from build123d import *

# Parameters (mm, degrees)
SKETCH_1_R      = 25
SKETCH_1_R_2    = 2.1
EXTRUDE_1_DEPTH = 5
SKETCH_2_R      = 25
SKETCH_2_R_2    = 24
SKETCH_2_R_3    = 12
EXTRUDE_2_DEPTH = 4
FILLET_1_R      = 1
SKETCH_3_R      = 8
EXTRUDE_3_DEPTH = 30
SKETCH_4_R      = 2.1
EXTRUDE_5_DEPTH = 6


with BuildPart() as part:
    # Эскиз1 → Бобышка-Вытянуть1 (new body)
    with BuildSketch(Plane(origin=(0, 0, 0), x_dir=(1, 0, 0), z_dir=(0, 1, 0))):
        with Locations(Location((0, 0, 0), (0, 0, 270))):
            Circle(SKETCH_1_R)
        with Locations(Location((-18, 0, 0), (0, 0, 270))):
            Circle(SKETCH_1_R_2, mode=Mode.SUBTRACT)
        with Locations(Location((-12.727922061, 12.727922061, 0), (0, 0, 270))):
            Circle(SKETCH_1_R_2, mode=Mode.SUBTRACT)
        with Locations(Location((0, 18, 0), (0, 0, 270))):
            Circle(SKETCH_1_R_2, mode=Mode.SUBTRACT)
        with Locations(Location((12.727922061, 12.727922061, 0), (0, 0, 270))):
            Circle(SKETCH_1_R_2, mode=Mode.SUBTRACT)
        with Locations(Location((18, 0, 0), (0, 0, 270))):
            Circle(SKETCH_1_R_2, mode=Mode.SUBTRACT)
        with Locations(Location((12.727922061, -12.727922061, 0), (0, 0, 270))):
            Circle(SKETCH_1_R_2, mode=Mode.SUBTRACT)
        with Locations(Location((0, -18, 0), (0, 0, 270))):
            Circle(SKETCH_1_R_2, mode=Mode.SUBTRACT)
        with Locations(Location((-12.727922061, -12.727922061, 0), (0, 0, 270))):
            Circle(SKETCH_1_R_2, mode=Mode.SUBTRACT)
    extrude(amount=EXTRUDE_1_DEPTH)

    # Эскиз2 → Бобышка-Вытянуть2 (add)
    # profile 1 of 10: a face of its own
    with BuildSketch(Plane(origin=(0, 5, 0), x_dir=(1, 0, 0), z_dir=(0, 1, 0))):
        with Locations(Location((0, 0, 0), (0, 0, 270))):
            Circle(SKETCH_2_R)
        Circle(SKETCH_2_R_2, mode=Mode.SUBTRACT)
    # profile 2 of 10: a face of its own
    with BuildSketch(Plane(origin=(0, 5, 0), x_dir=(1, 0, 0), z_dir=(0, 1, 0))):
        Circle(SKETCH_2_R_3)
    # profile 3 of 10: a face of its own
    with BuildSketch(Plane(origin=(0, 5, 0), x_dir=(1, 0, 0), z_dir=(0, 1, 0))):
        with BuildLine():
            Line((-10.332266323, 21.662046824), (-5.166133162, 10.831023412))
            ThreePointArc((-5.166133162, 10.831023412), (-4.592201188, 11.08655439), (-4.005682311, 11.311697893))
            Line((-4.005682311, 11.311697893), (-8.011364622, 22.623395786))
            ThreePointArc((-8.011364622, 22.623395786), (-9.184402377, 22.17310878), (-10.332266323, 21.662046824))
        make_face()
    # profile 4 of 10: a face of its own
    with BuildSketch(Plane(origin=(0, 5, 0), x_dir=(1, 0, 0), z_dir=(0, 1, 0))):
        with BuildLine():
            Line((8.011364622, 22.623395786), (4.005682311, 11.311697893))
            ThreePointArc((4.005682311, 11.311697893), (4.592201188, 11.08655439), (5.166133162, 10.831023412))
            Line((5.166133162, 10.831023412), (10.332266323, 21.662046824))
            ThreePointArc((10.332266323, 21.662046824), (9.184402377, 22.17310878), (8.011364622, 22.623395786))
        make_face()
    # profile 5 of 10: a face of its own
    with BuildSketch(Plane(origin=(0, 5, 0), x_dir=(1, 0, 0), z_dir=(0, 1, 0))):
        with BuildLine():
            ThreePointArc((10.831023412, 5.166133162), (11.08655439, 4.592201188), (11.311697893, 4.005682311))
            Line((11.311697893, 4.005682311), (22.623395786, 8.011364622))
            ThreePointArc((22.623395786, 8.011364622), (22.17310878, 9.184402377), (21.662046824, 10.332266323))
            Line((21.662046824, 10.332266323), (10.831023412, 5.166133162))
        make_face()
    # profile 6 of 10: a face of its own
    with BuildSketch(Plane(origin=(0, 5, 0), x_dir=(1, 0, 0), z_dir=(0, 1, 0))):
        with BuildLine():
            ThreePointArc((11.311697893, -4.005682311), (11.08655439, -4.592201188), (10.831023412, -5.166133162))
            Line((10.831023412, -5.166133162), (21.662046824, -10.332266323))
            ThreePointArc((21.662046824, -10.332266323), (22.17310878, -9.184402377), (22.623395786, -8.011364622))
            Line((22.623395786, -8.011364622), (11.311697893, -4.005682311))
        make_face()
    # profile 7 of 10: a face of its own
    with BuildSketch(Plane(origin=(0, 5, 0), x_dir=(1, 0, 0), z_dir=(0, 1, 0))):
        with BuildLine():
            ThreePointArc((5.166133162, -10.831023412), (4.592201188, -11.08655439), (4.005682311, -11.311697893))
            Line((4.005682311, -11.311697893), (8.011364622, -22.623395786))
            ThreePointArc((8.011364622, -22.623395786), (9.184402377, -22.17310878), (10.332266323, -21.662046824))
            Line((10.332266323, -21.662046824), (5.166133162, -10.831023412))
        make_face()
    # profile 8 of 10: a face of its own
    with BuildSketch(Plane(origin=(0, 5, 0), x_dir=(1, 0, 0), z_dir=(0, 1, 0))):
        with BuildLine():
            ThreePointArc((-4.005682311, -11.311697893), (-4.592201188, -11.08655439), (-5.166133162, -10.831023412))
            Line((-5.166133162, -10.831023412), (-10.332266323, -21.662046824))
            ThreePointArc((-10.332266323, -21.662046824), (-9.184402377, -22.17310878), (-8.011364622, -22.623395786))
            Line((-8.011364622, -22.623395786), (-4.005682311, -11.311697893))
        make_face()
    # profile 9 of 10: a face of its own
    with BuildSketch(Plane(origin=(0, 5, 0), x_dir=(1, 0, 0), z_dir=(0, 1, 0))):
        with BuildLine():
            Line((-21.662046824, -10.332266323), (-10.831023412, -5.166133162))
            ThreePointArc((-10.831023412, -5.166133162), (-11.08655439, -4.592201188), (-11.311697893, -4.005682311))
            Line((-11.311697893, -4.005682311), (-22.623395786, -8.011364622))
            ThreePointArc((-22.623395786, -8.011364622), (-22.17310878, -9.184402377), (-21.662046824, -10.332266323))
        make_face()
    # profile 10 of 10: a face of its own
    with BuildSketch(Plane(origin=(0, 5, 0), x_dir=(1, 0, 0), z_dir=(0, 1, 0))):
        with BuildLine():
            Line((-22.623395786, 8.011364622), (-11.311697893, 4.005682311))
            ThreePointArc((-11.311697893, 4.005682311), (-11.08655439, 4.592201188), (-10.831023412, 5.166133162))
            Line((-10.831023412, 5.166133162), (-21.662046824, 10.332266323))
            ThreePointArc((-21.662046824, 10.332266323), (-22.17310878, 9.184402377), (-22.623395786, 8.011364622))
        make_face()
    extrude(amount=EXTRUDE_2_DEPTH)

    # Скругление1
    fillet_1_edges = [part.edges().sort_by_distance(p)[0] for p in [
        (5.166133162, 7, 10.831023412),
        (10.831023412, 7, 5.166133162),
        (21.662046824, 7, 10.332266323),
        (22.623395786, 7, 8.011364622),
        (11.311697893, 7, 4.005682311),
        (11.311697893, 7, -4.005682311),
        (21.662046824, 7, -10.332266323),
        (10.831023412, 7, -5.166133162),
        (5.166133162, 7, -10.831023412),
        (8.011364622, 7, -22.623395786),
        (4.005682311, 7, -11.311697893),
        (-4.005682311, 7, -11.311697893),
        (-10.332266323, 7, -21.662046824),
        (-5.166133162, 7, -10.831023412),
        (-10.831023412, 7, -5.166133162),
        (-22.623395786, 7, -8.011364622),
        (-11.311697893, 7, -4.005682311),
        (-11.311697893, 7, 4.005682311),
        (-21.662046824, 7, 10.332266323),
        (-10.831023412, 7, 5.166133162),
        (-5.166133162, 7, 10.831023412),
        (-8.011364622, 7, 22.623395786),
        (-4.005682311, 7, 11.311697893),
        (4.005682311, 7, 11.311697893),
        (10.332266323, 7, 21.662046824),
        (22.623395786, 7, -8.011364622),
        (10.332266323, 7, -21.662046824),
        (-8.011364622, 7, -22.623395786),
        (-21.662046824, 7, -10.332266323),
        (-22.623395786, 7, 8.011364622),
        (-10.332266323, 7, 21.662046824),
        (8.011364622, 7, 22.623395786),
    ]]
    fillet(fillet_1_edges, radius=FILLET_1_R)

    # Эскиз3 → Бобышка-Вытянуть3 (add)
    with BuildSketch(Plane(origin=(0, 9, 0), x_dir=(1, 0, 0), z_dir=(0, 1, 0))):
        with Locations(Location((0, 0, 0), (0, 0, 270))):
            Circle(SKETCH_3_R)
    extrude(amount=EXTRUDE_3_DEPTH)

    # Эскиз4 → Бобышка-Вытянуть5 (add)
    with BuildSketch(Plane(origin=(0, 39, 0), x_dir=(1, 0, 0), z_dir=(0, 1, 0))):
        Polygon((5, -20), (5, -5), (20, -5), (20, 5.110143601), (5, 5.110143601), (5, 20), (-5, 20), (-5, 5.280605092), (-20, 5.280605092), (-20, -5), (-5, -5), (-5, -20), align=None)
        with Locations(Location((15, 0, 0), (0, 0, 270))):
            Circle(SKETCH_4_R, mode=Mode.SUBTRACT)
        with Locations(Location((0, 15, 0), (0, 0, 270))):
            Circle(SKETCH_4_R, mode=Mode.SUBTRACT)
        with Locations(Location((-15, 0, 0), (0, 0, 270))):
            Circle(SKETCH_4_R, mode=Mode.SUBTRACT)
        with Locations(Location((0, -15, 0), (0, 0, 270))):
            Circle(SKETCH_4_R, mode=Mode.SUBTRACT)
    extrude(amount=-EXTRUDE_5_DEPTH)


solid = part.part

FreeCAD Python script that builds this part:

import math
import FreeCAD as App
import Part
import Sketcher
Q = App.Units.Quantity


def edges_at(feature, points):
    """Names of the edges that pass closest to the given points."""
    edges = feature.Shape.Edges
    near = lambda p: min(range(len(edges)), key=lambda i: edges[i].distToShape(Part.Vertex(*p))[0])
    return sorted({f"Edge{near(p) + 1}" for p in points})


def add_polygon(sketch, points):
    """Adds a closed chain of lines whose ends are joined by coincident constraints."""
    first, n = sketch.GeometryCount, len(points)
    for a, b in zip(points, points[1:] + points[:1]):
        sketch.addGeometry(Part.LineSegment(App.Vector(*a, 0), App.Vector(*b, 0)), False)
    for i in range(n):
        sketch.addConstraint(Sketcher.Constraint("Coincident", first + i, 2, first + (i + 1) % n, 1))

doc = App.newDocument("Part")
body = doc.addObject("PartDesign::Body", "Body")

sketch1 = body.newObject("Sketcher::SketchObject", "Sketch")
sketch1.AttachmentSupport = (doc.getObject("XZ_Plane"), [""])
sketch1.MapMode = "FlatFace"
sketch1.addGeometry(Part.Circle(App.Vector(0, 0, 0), App.Vector(0, 0, 1), 25), False)
sketch1.addGeometry(Part.Circle(App.Vector(-12.727922, -12.727922, 0), App.Vector(0, 0, 1), 2.1), False)
sketch1.addGeometry(Part.Circle(App.Vector(0, -18, 0), App.Vector(0, 0, 1), 2.1), False)
sketch1.addGeometry(Part.Circle(App.Vector(-18, 0, 0), App.Vector(0, 0, 1), 2.1), False)
sketch1.addGeometry(Part.Circle(App.Vector(-12.727922, 12.727922, 0), App.Vector(0, 0, 1), 2.1), False)
sketch1.addGeometry(Part.Circle(App.Vector(12.727922, -12.727922, 0), App.Vector(0, 0, 1), 2.1), False)
sketch1.addGeometry(Part.Circle(App.Vector(18, 0, 0), App.Vector(0, 0, 1), 2.1), False)
sketch1.addGeometry(Part.Circle(App.Vector(0, 18, 0), App.Vector(0, 0, 1), 2.1), False)
sketch1.addGeometry(Part.Circle(App.Vector(12.727922, 12.727922, 0), App.Vector(0, 0, 1), 2.1), False)
sketch1.addConstraint(Sketcher.Constraint("Coincident", 0, 3, -1, 1))
sketch1.addConstraint(Sketcher.Constraint("Equal", 1, 2))
sketch1.addConstraint(Sketcher.Constraint("Equal", 2, 3))
sketch1.addConstraint(Sketcher.Constraint("Equal", 3, 4))
sketch1.addConstraint(Sketcher.Constraint("Equal", 4, 5))
sketch1.addConstraint(Sketcher.Constraint("Equal", 5, 6))
sketch1.addConstraint(Sketcher.Constraint("Equal", 6, 7))
sketch1.addConstraint(Sketcher.Constraint("Equal", 7, 8))
sketch1.addConstraint(Sketcher.Constraint("Symmetric", 4, 3, 5, 3, -1, 1))
sketch1.addConstraint(Sketcher.Constraint("Symmetric", 3, 3, 6, 3, -1, 1))
sketch1.addConstraint(Sketcher.Constraint("Symmetric", 2, 3, 7, 3, -1, 1))
sketch1.addConstraint(Sketcher.Constraint("Symmetric", 1, 3, 8, 3, -1, 1))
sketch1.addConstraint(Sketcher.Constraint("Symmetric", 1, 3, 5, 3, -2))
sketch1.addConstraint(Sketcher.Constraint("PointOnObject", 2, 3, -2))
sketch1.addConstraint(Sketcher.Constraint("PointOnObject", 3, 3, -1))
sketch1.addConstraint(Sketcher.Constraint("Diameter", 0, 50.0))
sketch1.addConstraint(Sketcher.Constraint("Diameter", 1, 4.2))
sketch1.addConstraint(Sketcher.Constraint("DistanceY", 2, 3, -1, 1, 18.0))
sketch1.addConstraint(Sketcher.Constraint("DistanceX", 3, 3, -1, 1, 18.0))
sketch1.addConstraint(Sketcher.Constraint("DistanceX", 1, 3, -1, 1, 12.727922))
sketch1.addConstraint(Sketcher.Constraint("DistanceY", 1, 3, -1, 1, 12.727922))
pad1 = body.newObject("PartDesign::Pad", "Pad")
pad1.Profile = sketch1
pad1.Length = 5
pad1.Reversed = True

sketch2 = body.newObject("Sketcher::SketchObject", "Sketch001")
sketch2.AttachmentSupport = (doc.getObject("XZ_Plane"), [""])
sketch2.MapMode = "FlatFace"
sketch2.AttachmentOffset = App.Placement(App.Vector(0, 0, -5), App.Rotation())
sketch2.addGeometry(Part.Circle(App.Vector(0, 0, 0), App.Vector(0, 0, 1), 25), False)
sketch2.addGeometry(Part.ArcOfCircle(Part.Circle(App.Vector(0, 0, 0), App.Vector(0, 0, 1), 24), math.radians(-19.5), math.radians(19.5)), False)
sketch2.addGeometry(Part.LineSegment(App.Vector(22.623396, 8.011365, 0), App.Vector(11.311698, 4.005682, 0)), False)
sketch2.addGeometry(Part.ArcOfCircle(Part.Circle(App.Vector(0, 0, 0), App.Vector(0, 0, 1), 12), math.radians(-19.5), math.radians(19.5)), False)
sketch2.addGeometry(Part.LineSegment(App.Vector(11.311698, -4.005682, 0), App.Vector(22.623396, -8.011365, 0)), False)
sketch2.addGeometry(Part.ArcOfCircle(Part.Circle(App.Vector(0, 0, 0), App.Vector(0, 0, 1), 24), math.radians(-64.5), math.radians(-25.5)), False)
sketch2.addGeometry(Part.LineSegment(App.Vector(21.662047, -10.332266, 0), App.Vector(10.831023, -5.166133, 0)), False)
sketch2.addGeometry(Part.ArcOfCircle(Part.Circle(App.Vector(0, 0, 0), App.Vector(0, 0, 1), 12), math.radians(-64.5), math.radians(-25.5)), False)
sketch2.addGeometry(Part.LineSegment(App.Vector(5.166133, -10.831023, 0), App.Vector(10.332266, -21.662047, 0)), False)
sketch2.addGeometry(Part.ArcOfCircle(Part.Circle(App.Vector(0, 0, 0), App.Vector(0, 0, 1), 24), math.radians(-109.5), math.radians(-70.5)), False)
sketch2.addGeometry(Part.LineSegment(App.Vector(8.011365, -22.623396, 0), App.Vector(4.005682, -11.311698, 0)), False)
sketch2.addGeometry(Part.ArcOfCircle(Part.Circle(App.Vector(0, 0, 0), App.Vector(0, 0, 1), 12), math.radians(-109.5), math.radians(-70.5)), False)
sketch2.addGeometry(Part.LineSegment(App.Vector(-4.005682, -11.311698, 0), App.Vector(-8.011365, -22.623396, 0)), False)
sketch2.addGeometry(Part.ArcOfCircle(Part.Circle(App.Vector(0, 0, 0), App.Vector(0, 0, 1), 24), math.radians(-154.5), math.radians(-115.5)), False)
sketch2.addGeometry(Part.LineSegment(App.Vector(-10.332266, -21.662047, 0), App.Vector(-5.166133, -10.831023, 0)), False)
sketch2.addGeometry(Part.ArcOfCircle(Part.Circle(App.Vector(0, 0, 0), App.Vector(0, 0, 1), 12), math.radians(-154.5), math.radians(-115.5)), False)
sketch2.addGeometry(Part.LineSegment(App.Vector(-10.831023, -5.166133, 0), App.Vector(-21.662047, -10.332266, 0)), False)
sketch2.addGeometry(Part.ArcOfCircle(Part.Circle(App.Vector(0, 0, 0), App.Vector(0, 0, 1), 24), math.radians(160.5), math.radians(199.5)), False)
sketch2.addGeometry(Part.LineSegment(App.Vector(-22.623396, -8.011365, 0), App.Vector(-11.311698, -4.005682, 0)), False)
sketch2.addGeometry(Part.ArcOfCircle(Part.Circle(App.Vector(0, 0, 0), App.Vector(0, 0, 1), 12), math.radians(160.5), math.radians(199.5)), False)
sketch2.addGeometry(Part.LineSegment(App.Vector(-11.311698, 4.005682, 0), App.Vector(-22.623396, 8.011365, 0)), False)
sketch2.addGeometry(Part.ArcOfCircle(Part.Circle(App.Vector(0, 0, 0), App.Vector(0, 0, 1), 24), math.radians(115.5), math.radians(154.5)), False)
sketch2.addGeometry(Part.LineSegment(App.Vector(-21.662047, 10.332266, 0), App.Vector(-10.831023, 5.166133, 0)), False)
sketch2.addGeometry(Part.ArcOfCircle(Part.Circle(App.Vector(0, 0, 0), App.Vector(0, 0, 1), 12), math.radians(115.5), math.radians(154.5)), False)
sketch2.addGeometry(Part.LineSegment(App.Vector(-5.166133, 10.831023, 0), App.Vector(-10.332266, 21.662047, 0)), False)
sketch2.addGeometry(Part.ArcOfCircle(Part.Circle(App.Vector(0, 0, 0), App.Vector(0, 0, 1), 24), math.radians(70.5), math.radians(109.5)), False)
sketch2.addGeometry(Part.LineSegment(App.Vector(-8.011365, 22.623396, 0), App.Vector(-4.005682, 11.311698, 0)), False)
sketch2.addGeometry(Part.ArcOfCircle(Part.Circle(App.Vector(0, 0, 0), App.Vector(0, 0, 1), 12), math.radians(70.5), math.radians(109.5)), False)
sketch2.addGeometry(Part.LineSegment(App.Vector(4.005682, 11.311698, 0), App.Vector(8.011365, 22.623396, 0)), False)
sketch2.addGeometry(Part.ArcOfCircle(Part.Circle(App.Vector(0, 0, 0), App.Vector(0, 0, 1), 24), math.radians(25.5), math.radians(64.5)), False)
sketch2.addGeometry(Part.LineSegment(App.Vector(10.332266, 21.662047, 0), App.Vector(5.166133, 10.831023, 0)), False)
sketch2.addGeometry(Part.ArcOfCircle(Part.Circle(App.Vector(0, 0, 0), App.Vector(0, 0, 1), 12), math.radians(25.5), math.radians(64.5)), False)
sketch2.addGeometry(Part.LineSegment(App.Vector(10.831023, 5.166133, 0), App.Vector(21.662047, 10.332266, 0)), False)
sketch2.addConstraint(Sketcher.Constraint("Coincident", 1, 2, 2, 1))
sketch2.addConstraint(Sketcher.Constraint("Coincident", 2, 2, 3, 2))
sketch2.addConstraint(Sketcher.Constraint("Coincident", 3, 1, 4, 1))
sketch2.addConstraint(Sketcher.Constraint("Coincident", 4, 2, 1, 1))
sketch2.addConstraint(Sketcher.Constraint("Coincident", 5, 2, 6, 1))
sketch2.addConstraint(Sketcher.Constraint("Coincident", 6, 2, 7, 2))
sketch2.addConstraint(Sketcher.Constraint("Coincident", 7, 1, 8, 1))
sketch2.addConstraint(Sketcher.Constraint("Coincident", 8, 2, 5, 1))
sketch2.addConstraint(Sketcher.Constraint("Coincident", 9, 2, 10, 1))
sketch2.addConstraint(Sketcher.Constraint("Coincident", 10, 2, 11, 2))
sketch2.addConstraint(Sketcher.Constraint("Coincident", 11, 1, 12, 1))
sketch2.addConstraint(Sketcher.Constraint("Coincident", 12, 2, 9, 1))
sketch2.addConstraint(Sketcher.Constraint("Coincident", 13, 2, 14, 1))
sketch2.addConstraint(Sketcher.Constraint("Coincident", 14, 2, 15, 2))
sketch2.addConstraint(Sketcher.Constraint("Coincident", 15, 1, 16, 1))
sketch2.addConstraint(Sketcher.Constraint("Coincident", 16, 2, 13, 1))
sketch2.addConstraint(Sketcher.Constraint("Coincident", 17, 2, 18, 1))
sketch2.addConstraint(Sketcher.Constraint("Coincident", 18, 2, 19, 2))
sketch2.addConstraint(Sketcher.Constraint("Coincident", 19, 1, 20, 1))
sketch2.addConstraint(Sketcher.Constraint("Coincident", 20, 2, 17, 1))
sketch2.addConstraint(Sketcher.Constraint("Coincident", 21, 2, 22, 1))
sketch2.addConstraint(Sketcher.Constraint("Coincident", 22, 2, 23, 2))
sketch2.addConstraint(Sketcher.Constraint("Coincident", 23, 1, 24, 1))
sketch2.addConstraint(Sketcher.Constraint("Coincident", 24, 2, 21, 1))
sketch2.addConstraint(Sketcher.Constraint("Coincident", 25, 2, 26, 1))
sketch2.addConstraint(Sketcher.Constraint("Coincident", 26, 2, 27, 2))
sketch2.addConstraint(Sketcher.Constraint("Coincident", 27, 1, 28, 1))
sketch2.addConstraint(Sketcher.Constraint("Coincident", 28, 2, 25, 1))
sketch2.addConstraint(Sketcher.Constraint("Coincident", 29, 2, 30, 1))
sketch2.addConstraint(Sketcher.Constraint("Coincident", 30, 2, 31, 2))
sketch2.addConstraint(Sketcher.Constraint("Coincident", 31, 1, 32, 1))
sketch2.addConstraint(Sketcher.Constraint("Coincident", 32, 2, 29, 1))
sketch2.addConstraint(Sketcher.Constraint("Coincident", 0, 3, -1, 1))
sketch2.addConstraint(Sketcher.Constraint("Coincident", 1, 3, -1, 1))
sketch2.addConstraint(Sketcher.Constraint("Coincident", 3, 3, -1, 1))
sketch2.addConstraint(Sketcher.Constraint("Coincident", 5, 3, -1, 1))
sketch2.addConstraint(Sketcher.Constraint("Coincident", 7, 3, -1, 1))
sketch2.addConstraint(Sketcher.Constraint("Coincident", 9, 3, -1, 1))
sketch2.addConstraint(Sketcher.Constraint("Coincident", 11, 3, -1, 1))
sketch2.addConstraint(Sketcher.Constraint("Coincident", 13, 3, -1, 1))
sketch2.addConstraint(Sketcher.Constraint("Coincident", 15, 3, -1, 1))
sketch2.addConstraint(Sketcher.Constraint("Coincident", 17, 3, -1, 1))
sketch2.addConstraint(Sketcher.Constraint("Coincident", 19, 3, -1, 1))
sketch2.addConstraint(Sketcher.Constraint("Coincident", 21, 3, -1, 1))
sketch2.addConstraint(Sketcher.Constraint("Coincident", 23, 3, -1, 1))
sketch2.addConstraint(Sketcher.Constraint("Coincident", 25, 3, -1, 1))
sketch2.addConstraint(Sketcher.Constraint("Coincident", 27, 3, -1, 1))
sketch2.addConstraint(Sketcher.Constraint("Coincident", 29, 3, -1, 1))
sketch2.addConstraint(Sketcher.Constraint("Coincident", 31, 3, -1, 1))
sketch2.addConstraint(Sketcher.Constraint("Equal", 1, 5))
sketch2.addConstraint(Sketcher.Constraint("Equal", 3, 7))
sketch2.addConstraint(Sketcher.Constraint("Equal", 5, 9))
sketch2.addConstraint(Sketcher.Constraint("Equal", 7, 11))
sketch2.addConstraint(Sketcher.Constraint("Equal", 9, 13))
sketch2.addConstraint(Sketcher.Constraint("Equal", 11, 15))
sketch2.addConstraint(Sketcher.Constraint("Equal", 13, 17))
sketch2.addConstraint(Sketcher.Constraint("Equal", 15, 19))
sketch2.addConstraint(Sketcher.Constraint("Equal", 17, 21))
sketch2.addConstraint(Sketcher.Constraint("Equal", 19, 23))
sketch2.addConstraint(Sketcher.Constraint("Equal", 21, 25))
sketch2.addConstraint(Sketcher.Constraint("Equal", 23, 27))
sketch2.addConstraint(Sketcher.Constraint("Equal", 25, 29))
sketch2.addConstraint(Sketcher.Constraint("Equal", 27, 31))
sketch2.addConstraint(Sketcher.Constraint("Perpendicular", 2, 10))
sketch2.addConstraint(Sketcher.Constraint("Perpendicular", 4, 12))
sketch2.addConstraint(Sketcher.Constraint("Perpendicular", 6, 14))
sketch2.addConstraint(Sketcher.Constraint("Perpendicular", 8, 16))
sketch2.addConstraint(Sketcher.Constraint("Perpendicular", 10, 18))
sketch2.addConstraint(Sketcher.Constraint("Perpendicular", 12, 20))
sketch2.addConstraint(Sketcher.Constraint("Perpendicular", 14, 22))
sketch2.addConstraint(Sketcher.Constraint("Perpendicular", 16, 24))
sketch2.addConstraint(Sketcher.Constraint("Perpendicular", 18, 26))
sketch2.addConstraint(Sketcher.Constraint("Perpendicular", 20, 28))
sketch2.addConstraint(Sketcher.Constraint("Perpendicular", 22, 30))
sketch2.addConstraint(Sketcher.Constraint("Perpendicular", 24, 32))
sketch2.addConstraint(Sketcher.Constraint("Horizontal", 10, 2, 11, 1))
sketch2.addConstraint(Sketcher.Constraint("Horizontal", 9, 2, 12, 2))
sketch2.addConstraint(Sketcher.Constraint("Horizontal", 8, 2, 13, 2))
sketch2.addConstraint(Sketcher.Constraint("Horizontal", 7, 1, 14, 2))
sketch2.addConstraint(Sketcher.Constraint("Horizontal", 6, 2, 15, 1))
sketch2.addConstraint(Sketcher.Constraint("Horizontal", 4, 2, 17, 2))
sketch2.addConstraint(Sketcher.Constraint("Horizontal", 2, 2, 19, 1))
sketch2.addConstraint(Sketcher.Constraint("Horizontal", 26, 2, 27, 1))
sketch2.addConstraint(Sketcher.Constraint("Horizontal", 24, 2, 29, 2))
sketch2.addConstraint(Sketcher.Constraint("Horizontal", 22, 2, 31, 1))
sketch2.addConstraint(Sketcher.Constraint("Vertical", 2, 2, 3, 1))
sketch2.addConstraint(Sketcher.Constraint("Vertical", 16, 2, 21, 2))
sketch2.addConstraint(Sketcher.Constraint("Vertical", 14, 2, 23, 1))
sketch2.addConstraint(Sketcher.Constraint("Vertical", 12, 2, 25, 2))
sketch2.addConstraint(Sketcher.Constraint("Diameter", 0, 50.0))
sketch2.addConstraint(Sketcher.Constraint("Radius", 1, 24.0))
sketch2.addConstraint(Sketcher.Constraint("Radius", 3, 12.0))
sketch2.addConstraint(Sketcher.Constraint("Angle", 2, Q("-160.5 deg")))
sketch2.addConstraint(Sketcher.Constraint("Angle", 6, Q("154.5 deg")))
sketch2.addConstraint(Sketcher.Constraint("DistanceY", 5, 2, 4, 2, 2.320902))
sketch2.addConstraint(Sketcher.Constraint("DistanceX", 9, 2, 8, 2, 2.320902))
sketch2.addConstraint(Sketcher.Constraint("DistanceX", 13, 2, 7, 1, 15.498399))
sketch2.addConstraint(Sketcher.Constraint("DistanceY", 15, 1, 21, 2, 15.498399))
pad2 = body.newObject("PartDesign::Pad", "Pad001")
pad2.Profile = sketch2
pad2.Length = 4
pad2.Reversed = True
doc.recompute()

fillet = body.newObject("PartDesign::Fillet", "Fillet")
fillet.Base = (pad2, edges_at(pad2, [
    (5.166, 7, 10.831),
    (10.831, 7, 5.166),
    (21.662, 7, 10.332),
    (22.623, 7, 8.011),
    (11.312, 7, 4.006),
    (11.312, 7, -4.006),
    (21.662, 7, -10.332),
    (10.831, 7, -5.166),
    (5.166, 7, -10.831),
    (8.011, 7, -22.623),
    (4.006, 7, -11.312),
    (-4.006, 7, -11.312),
    (-10.332, 7, -21.662),
    (-5.166, 7, -10.831),
    (-10.831, 7, -5.166),
    (-22.623, 7, -8.011),
    (-11.312, 7, -4.006),
    (-11.312, 7, 4.006),
    (-21.662, 7, 10.332),
    (-10.831, 7, 5.166),
    (-5.166, 7, 10.831),
    (-8.011, 7, 22.623),
    (-4.006, 7, 11.312),
    (4.006, 7, 11.312),
    (10.332, 7, 21.662),
    (22.623, 7, -8.011),
    (10.332, 7, -21.662),
    (-8.011, 7, -22.623),
    (-21.662, 7, -10.332),
    (-22.623, 7, 8.011),
    (-10.332, 7, 21.662),
    (8.011, 7, 22.623),
]))
fillet.Radius = 1

sketch3 = body.newObject("Sketcher::SketchObject", "Sketch002")
sketch3.AttachmentSupport = (doc.getObject("XZ_Plane"), [""])
sketch3.MapMode = "FlatFace"
sketch3.AttachmentOffset = App.Placement(App.Vector(0, 0, -9), App.Rotation())
sketch3.addGeometry(Part.Circle(App.Vector(0, 0, 0), App.Vector(0, 0, 1), 8), False)
sketch3.addConstraint(Sketcher.Constraint("Coincident", 0, 3, -1, 1))
sketch3.addConstraint(Sketcher.Constraint("Diameter", 0, 16.0))
pad3 = body.newObject("PartDesign::Pad", "Pad002")
pad3.Profile = sketch3
pad3.Length = 30
pad3.Reversed = True

sketch4 = body.newObject("Sketcher::SketchObject", "Sketch003")
sketch4.AttachmentSupport = (doc.getObject("XZ_Plane"), [""])
sketch4.MapMode = "FlatFace"
sketch4.AttachmentOffset = App.Placement(App.Vector(0, 0, -39), App.Rotation())
add_polygon(sketch4, [(5, 20), (5, 5), (20, 5), (20, -5.110144), (5, -5.110144), (5, -20), (-5, -20), (-5, -5.280605), (-20, -5.280605), (-20, 5), (-5, 5), (-5, 20)])
sketch4.addGeometry(Part.Circle(App.Vector(0, 15, 0), App.Vector(0, 0, 1), 2.1), False)
sketch4.addGeometry(Part.Circle(App.Vector(-15, 0, 0), App.Vector(0, 0, 1), 2.1), False)
sketch4.addGeometry(Part.Circle(App.Vector(15, 0, 0), App.Vector(0, 0, 1), 2.1), False)
sketch4.addGeometry(Part.Circle(App.Vector(0, -15, 0), App.Vector(0, 0, 1), 2.1), False)
sketch4.addConstraint(Sketcher.Constraint("Vertical", 0))
sketch4.addConstraint(Sketcher.Constraint("Horizontal", 1))
sketch4.addConstraint(Sketcher.Constraint("Vertical", 2))
sketch4.addConstraint(Sketcher.Constraint("Horizontal", 3))
sketch4.addConstraint(Sketcher.Constraint("Vertical", 4))
sketch4.addConstraint(Sketcher.Constraint("Horizontal", 5))
sketch4.addConstraint(Sketcher.Constraint("Vertical", 6))
sketch4.addConstraint(Sketcher.Constraint("Horizontal", 7))
sketch4.addConstraint(Sketcher.Constraint("Vertical", 8))
sketch4.addConstraint(Sketcher.Constraint("Horizontal", 9))
sketch4.addConstraint(Sketcher.Constraint("Vertical", 10))
sketch4.addConstraint(Sketcher.Constraint("Horizontal", 11))
sketch4.addConstraint(Sketcher.Constraint("Equal", 12, 13))
sketch4.addConstraint(Sketcher.Constraint("Equal", 13, 14))
sketch4.addConstraint(Sketcher.Constraint("Equal", 14, 15))
sketch4.addConstraint(Sketcher.Constraint("Symmetric", 13, 3, 14, 3, -1, 1))
sketch4.addConstraint(Sketcher.Constraint("Symmetric", 12, 3, 15, 3, -1, 1))
sketch4.addConstraint(Sketcher.Constraint("Symmetric", 4, 2, 10, 2, -1, 1))
sketch4.addConstraint(Sketcher.Constraint("Symmetric", 1, 2, 8, 2, -2))
sketch4.addConstraint(Sketcher.Constraint("PointOnObject", 12, 3, -2))
sketch4.addConstraint(Sketcher.Constraint("PointOnObject", 13, 3, -1))
sketch4.addConstraint(Sketcher.Constraint("Vertical", 0, 2, 3, 2))
sketch4.addConstraint(Sketcher.Constraint("Vertical", 6, 2, 9, 2))
sketch4.addConstraint(Sketcher.Constraint("Equal", 9, 0))
sketch4.addConstraint(Sketcher.Constraint("Diameter", 12, 4.2))
sketch4.addConstraint(Sketcher.Constraint("DistanceX", 1, 1, 1, 2, 15.0))
sketch4.addConstraint(Sketcher.Constraint("DistanceX", 5, 2, 5, 1, 10.0))
sketch4.addConstraint(Sketcher.Constraint("DistanceY", -1, 1, 12, 3, 15.0))
sketch4.addConstraint(Sketcher.Constraint("DistanceX", 13, 3, -1, 1, 15.0))
sketch4.addConstraint(Sketcher.Constraint("DistanceY", -1, 1, 0, 2, 5.0))
sketch4.addConstraint(Sketcher.Constraint("DistanceY", 2, 2, 2, 1, 10.110144))
sketch4.addConstraint(Sketcher.Constraint("DistanceY", 6, 1, 6, 2, 14.719395))
pad4 = body.newObject("PartDesign::Pad", "Pad003")
pad4.Profile = sketch4
pad4.Length = 6

doc.recompute()
